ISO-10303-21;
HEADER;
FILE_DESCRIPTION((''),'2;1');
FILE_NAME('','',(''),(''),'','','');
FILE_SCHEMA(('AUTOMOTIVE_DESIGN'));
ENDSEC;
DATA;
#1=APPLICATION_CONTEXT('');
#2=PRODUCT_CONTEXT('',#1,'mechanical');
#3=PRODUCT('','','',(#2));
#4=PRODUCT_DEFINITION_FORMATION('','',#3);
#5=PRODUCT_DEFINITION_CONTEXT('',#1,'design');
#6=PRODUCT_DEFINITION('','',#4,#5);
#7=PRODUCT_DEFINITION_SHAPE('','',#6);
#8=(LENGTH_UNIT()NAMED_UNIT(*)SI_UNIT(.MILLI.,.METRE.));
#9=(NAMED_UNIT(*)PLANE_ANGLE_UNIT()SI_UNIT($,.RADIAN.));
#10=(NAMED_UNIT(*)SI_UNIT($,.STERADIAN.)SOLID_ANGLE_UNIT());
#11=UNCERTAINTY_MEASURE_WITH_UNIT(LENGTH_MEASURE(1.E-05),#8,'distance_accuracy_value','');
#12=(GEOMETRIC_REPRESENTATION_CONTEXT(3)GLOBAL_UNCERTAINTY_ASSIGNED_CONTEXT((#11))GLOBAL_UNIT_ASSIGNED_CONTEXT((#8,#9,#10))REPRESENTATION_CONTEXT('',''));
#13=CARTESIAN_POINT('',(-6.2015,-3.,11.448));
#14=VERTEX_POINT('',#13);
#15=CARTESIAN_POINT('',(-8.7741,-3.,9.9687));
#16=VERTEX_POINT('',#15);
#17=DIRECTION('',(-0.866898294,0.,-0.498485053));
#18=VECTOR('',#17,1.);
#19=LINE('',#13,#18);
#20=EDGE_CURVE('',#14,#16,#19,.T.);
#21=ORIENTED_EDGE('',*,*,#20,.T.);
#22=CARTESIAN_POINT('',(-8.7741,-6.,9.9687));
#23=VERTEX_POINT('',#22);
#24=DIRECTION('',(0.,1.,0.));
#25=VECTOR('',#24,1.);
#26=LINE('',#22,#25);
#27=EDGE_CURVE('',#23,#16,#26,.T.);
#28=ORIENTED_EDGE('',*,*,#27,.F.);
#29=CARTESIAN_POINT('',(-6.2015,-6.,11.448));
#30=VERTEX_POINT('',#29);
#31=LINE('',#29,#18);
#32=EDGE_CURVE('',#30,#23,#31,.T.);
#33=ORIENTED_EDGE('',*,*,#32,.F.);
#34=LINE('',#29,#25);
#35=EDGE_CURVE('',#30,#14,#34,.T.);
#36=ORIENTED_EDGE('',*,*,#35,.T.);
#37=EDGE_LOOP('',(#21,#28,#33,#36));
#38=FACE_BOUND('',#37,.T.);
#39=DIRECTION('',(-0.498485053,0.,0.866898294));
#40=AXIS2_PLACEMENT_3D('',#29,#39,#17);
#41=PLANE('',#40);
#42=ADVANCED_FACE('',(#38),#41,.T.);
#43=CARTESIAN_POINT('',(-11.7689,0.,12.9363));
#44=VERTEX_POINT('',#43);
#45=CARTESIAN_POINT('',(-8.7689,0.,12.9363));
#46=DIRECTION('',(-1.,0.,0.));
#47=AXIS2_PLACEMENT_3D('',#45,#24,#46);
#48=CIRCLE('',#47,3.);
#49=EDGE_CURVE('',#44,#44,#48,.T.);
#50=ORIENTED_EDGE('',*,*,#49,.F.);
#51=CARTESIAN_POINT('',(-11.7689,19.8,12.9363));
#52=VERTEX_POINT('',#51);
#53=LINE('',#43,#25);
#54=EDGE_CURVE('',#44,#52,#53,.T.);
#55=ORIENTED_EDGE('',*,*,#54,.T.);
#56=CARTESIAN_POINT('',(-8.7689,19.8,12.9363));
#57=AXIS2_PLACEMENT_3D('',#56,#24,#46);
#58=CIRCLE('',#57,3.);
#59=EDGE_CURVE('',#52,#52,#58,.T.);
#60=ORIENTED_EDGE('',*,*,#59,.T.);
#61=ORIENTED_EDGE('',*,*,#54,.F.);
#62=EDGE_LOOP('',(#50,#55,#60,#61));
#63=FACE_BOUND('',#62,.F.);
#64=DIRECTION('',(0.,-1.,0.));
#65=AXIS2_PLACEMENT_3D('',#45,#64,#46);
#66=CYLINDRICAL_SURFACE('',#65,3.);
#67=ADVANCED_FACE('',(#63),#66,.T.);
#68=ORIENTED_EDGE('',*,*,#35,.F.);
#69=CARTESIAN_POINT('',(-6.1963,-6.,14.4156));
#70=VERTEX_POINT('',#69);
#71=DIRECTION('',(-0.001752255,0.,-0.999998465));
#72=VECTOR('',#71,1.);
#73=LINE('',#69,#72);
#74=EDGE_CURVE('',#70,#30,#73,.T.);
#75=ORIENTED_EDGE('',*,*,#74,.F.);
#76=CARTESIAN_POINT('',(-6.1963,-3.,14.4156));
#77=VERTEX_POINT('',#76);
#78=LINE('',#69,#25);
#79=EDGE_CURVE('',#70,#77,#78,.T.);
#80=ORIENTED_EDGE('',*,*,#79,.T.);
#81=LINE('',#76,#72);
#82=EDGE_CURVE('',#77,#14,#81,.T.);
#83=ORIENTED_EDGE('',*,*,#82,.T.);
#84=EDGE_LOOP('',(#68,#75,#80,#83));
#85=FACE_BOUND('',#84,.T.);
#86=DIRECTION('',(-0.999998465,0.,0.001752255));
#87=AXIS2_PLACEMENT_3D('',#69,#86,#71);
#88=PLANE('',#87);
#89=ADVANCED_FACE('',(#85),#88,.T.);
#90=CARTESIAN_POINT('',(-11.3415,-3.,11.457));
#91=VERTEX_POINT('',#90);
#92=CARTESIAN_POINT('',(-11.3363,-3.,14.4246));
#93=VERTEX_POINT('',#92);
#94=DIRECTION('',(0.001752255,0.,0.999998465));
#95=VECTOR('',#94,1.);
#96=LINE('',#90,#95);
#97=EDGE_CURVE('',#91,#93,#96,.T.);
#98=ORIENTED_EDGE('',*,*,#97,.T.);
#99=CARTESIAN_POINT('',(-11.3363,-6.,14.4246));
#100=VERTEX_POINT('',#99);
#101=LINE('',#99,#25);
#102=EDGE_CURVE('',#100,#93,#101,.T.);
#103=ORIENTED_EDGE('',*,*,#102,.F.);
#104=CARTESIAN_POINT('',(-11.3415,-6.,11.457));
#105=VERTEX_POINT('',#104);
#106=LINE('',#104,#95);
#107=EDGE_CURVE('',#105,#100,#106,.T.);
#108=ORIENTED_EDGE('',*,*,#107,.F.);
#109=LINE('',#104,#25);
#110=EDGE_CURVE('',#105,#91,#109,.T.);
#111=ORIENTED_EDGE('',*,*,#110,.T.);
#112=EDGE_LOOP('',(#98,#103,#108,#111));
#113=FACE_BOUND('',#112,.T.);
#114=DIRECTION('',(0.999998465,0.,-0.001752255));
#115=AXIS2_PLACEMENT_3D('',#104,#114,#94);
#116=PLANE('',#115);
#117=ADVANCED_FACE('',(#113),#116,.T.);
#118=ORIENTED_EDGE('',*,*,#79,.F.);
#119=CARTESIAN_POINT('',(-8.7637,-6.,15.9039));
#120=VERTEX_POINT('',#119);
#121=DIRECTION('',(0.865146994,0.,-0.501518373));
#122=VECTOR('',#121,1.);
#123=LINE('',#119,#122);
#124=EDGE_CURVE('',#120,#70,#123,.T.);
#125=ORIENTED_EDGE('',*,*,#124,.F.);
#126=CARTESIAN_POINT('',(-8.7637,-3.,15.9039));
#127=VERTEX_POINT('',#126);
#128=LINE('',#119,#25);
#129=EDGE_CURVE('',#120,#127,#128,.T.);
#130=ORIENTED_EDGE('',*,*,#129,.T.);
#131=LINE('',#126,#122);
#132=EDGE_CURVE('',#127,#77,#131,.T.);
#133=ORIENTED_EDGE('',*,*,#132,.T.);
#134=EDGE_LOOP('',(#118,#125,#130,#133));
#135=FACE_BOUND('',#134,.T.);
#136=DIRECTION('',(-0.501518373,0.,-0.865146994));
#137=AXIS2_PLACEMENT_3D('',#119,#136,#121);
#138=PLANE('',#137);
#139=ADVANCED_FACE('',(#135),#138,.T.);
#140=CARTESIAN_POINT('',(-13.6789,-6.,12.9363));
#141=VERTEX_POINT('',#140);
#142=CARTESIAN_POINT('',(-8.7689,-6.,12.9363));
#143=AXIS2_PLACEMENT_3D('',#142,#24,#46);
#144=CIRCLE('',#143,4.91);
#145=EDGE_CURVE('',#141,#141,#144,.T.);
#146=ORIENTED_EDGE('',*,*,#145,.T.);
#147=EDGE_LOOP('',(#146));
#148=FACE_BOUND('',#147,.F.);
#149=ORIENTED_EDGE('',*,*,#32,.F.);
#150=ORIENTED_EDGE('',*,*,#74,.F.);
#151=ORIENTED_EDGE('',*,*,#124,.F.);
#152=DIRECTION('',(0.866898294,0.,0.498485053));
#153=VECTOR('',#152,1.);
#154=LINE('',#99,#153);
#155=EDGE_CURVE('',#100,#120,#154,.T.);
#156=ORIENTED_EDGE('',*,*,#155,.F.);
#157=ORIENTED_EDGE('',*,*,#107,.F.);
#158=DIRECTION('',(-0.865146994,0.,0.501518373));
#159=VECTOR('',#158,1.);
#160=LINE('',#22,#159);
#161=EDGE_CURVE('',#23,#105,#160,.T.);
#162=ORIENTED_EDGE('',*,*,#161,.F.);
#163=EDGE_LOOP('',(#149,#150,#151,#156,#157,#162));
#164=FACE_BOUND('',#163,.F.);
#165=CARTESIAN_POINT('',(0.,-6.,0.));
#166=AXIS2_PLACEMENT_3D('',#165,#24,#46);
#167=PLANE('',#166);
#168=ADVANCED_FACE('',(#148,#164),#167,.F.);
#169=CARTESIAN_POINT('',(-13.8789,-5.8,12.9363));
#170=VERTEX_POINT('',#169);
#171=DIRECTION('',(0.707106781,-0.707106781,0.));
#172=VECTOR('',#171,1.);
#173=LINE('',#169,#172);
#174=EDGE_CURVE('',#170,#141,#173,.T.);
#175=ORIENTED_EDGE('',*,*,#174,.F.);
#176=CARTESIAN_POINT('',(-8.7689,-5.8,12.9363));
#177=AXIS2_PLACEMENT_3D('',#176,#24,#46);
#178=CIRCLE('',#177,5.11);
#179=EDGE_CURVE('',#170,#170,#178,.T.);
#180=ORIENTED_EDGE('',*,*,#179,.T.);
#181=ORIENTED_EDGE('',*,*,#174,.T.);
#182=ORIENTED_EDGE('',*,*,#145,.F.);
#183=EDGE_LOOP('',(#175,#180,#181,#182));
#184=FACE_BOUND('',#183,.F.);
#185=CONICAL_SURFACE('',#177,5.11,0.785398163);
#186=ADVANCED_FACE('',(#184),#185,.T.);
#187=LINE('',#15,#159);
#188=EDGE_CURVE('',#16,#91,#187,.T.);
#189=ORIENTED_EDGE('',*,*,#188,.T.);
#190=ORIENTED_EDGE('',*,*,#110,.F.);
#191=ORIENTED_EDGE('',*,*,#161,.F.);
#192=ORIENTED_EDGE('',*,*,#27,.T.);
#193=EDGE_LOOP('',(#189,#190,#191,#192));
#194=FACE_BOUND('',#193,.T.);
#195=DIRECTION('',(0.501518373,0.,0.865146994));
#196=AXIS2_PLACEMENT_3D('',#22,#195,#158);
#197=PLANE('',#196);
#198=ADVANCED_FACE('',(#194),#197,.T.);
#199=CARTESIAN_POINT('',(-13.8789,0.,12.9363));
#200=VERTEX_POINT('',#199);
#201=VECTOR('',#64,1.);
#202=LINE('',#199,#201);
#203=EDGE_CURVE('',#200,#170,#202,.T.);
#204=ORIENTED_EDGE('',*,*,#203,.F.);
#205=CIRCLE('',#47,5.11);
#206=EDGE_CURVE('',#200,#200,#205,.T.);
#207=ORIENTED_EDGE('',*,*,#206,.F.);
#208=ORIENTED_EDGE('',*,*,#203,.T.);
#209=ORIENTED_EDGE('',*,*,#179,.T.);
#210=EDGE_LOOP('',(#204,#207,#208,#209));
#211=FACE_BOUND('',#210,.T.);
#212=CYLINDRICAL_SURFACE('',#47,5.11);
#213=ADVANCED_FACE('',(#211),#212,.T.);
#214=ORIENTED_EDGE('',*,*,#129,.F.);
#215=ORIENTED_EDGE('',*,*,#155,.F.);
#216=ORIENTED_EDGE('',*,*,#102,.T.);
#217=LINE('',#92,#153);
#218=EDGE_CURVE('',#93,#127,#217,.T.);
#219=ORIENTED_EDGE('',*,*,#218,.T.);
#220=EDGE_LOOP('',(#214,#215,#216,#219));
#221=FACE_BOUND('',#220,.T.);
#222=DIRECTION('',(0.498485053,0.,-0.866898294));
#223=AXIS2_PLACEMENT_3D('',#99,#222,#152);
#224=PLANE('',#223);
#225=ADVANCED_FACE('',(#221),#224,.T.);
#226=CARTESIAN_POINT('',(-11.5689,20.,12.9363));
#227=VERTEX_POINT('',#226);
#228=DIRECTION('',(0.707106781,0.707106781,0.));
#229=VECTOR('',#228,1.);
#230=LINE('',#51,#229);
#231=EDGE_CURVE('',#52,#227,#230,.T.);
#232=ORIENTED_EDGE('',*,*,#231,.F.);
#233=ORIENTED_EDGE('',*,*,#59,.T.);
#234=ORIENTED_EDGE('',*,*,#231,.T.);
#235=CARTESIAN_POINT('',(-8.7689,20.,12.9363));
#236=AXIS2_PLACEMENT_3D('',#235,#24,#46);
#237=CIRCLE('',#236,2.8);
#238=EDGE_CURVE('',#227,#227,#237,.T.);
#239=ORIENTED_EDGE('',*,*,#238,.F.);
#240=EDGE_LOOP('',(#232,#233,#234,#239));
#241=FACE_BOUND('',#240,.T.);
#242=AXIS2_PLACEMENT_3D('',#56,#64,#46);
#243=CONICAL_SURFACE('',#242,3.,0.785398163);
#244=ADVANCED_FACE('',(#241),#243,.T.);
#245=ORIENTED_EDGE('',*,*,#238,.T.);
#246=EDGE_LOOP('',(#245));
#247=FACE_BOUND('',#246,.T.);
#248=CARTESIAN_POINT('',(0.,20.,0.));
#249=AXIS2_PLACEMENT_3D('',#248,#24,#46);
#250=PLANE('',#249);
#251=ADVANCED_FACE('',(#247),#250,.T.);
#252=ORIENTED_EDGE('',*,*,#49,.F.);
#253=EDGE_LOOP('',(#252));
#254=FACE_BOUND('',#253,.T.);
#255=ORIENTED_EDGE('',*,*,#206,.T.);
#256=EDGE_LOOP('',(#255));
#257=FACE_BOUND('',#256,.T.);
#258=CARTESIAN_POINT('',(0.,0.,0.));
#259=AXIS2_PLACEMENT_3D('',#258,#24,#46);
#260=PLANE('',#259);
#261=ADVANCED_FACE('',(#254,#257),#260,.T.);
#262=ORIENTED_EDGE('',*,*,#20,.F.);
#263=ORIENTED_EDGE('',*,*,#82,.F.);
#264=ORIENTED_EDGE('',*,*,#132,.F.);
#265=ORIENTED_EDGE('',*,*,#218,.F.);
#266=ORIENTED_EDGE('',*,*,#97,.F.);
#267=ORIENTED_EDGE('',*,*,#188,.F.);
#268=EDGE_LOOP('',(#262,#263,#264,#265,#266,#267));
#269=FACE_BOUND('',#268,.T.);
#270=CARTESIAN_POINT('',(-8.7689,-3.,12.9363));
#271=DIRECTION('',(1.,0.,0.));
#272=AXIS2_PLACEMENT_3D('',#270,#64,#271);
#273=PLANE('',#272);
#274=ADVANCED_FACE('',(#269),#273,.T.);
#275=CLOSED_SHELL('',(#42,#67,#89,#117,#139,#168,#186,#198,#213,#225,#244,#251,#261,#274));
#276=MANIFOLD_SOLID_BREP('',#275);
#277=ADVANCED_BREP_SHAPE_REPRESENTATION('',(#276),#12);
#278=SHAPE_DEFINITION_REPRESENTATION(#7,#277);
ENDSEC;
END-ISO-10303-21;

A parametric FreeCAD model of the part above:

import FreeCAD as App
import Part
import Sketcher
Q = App.Units.Quantity


def edges_at(feature, points):
    """Names of the edges that pass closest to the given points."""
    edges = feature.Shape.Edges
    near = lambda p: min(range(len(edges)), key=lambda i: edges[i].distToShape(Part.Vertex(*p))[0])
    return sorted({f"Edge{near(p) + 1}" for p in points})

doc = App.newDocument("Part")
body = doc.addObject("PartDesign::Body", "Body")

sketch1 = body.newObject("Sketcher::SketchObject", "Sketch")
sketch1.AttachmentSupport = (doc.getObject("XZ_Plane"), [""])
sketch1.MapMode = "FlatFace"
sketch1.addGeometry(Part.Circle(App.Vector(-8.8, 12.9, 0), App.Vector(0, 0, 1), 3), False)
sketch1.addConstraint([
    Sketcher.Constraint("Diameter", 0, Q("6 mm")),
    Sketcher.Constraint("DistanceX", 0, 3, -1, 1, Q("8.769 mm")),
    Sketcher.Constraint("DistanceY", -1, 1, 0, 3, Q("12.9363 mm")),
])
pad1 = body.newObject("PartDesign::Pad", "Pad")
pad1.Profile = sketch1
pad1.Length = 20
pad1.Reversed = True

sketch2 = body.newObject("Sketcher::SketchObject", "Sketch001")
sketch2.AttachmentSupport = (doc.getObject("XZ_Plane"), [""])
sketch2.MapMode = "FlatFace"
sketch2.addGeometry(Part.Circle(App.Vector(-9, 13, 0), App.Vector(0, 0, 1), 5), False)
sketch2.addConstraint([
    Sketcher.Constraint("Diameter", 0, Q("10.22 mm")),
    Sketcher.Constraint("DistanceX", 0, 3, -1, 1, Q("8.769 mm")),
    Sketcher.Constraint("DistanceY", -1, 1, 0, 3, Q("12.9363 mm")),
])
pad2 = body.newObject("PartDesign::Pad", "Pad001")
pad2.Profile = sketch2
pad2.Length = 6

sketch3 = body.newObject("Sketcher::SketchObject", "Sketch002")
sketch3.AttachmentSupport = (doc.getObject("XZ_Plane"), [""])
sketch3.MapMode = "FlatFace"
sketch3.AttachmentOffset = App.Placement(App.Vector(0, 0, 6), App.Rotation())
sketch3.addGeometry([
    Part.LineSegment(App.Vector(-11.3, 14.4, 0), App.Vector(-11.3, 11.5, 0)),
    Part.LineSegment(App.Vector(-11.3, 11.5, 0), App.Vector(-8.8, 10, 0)),
    Part.LineSegment(App.Vector(-8.8, 10, 0), App.Vector(-6.2, 11.4, 0)),
    Part.LineSegment(App.Vector(-6.2, 11.4, 0), App.Vector(-6.2, 14.4, 0)),
    Part.LineSegment(App.Vector(-6.2, 14.4, 0), App.Vector(-8.8, 15.9, 0)),
    Part.LineSegment(App.Vector(-8.8, 15.9, 0), App.Vector(-11.3, 14.4, 0)),
], False)
sketch3.addConstraint([
    Sketcher.Constraint("Coincident", 0, 2, 1, 1),
    Sketcher.Constraint("Coincident", 1, 2, 2, 1),
    Sketcher.Constraint("Coincident", 2, 2, 3, 1),
    Sketcher.Constraint("Coincident", 3, 2, 4, 1),
    Sketcher.Constraint("Coincident", 4, 2, 5, 1),
    Sketcher.Constraint("Coincident", 5, 2, 0, 1),
    Sketcher.Constraint("Parallel", 0, 3),
    Sketcher.Constraint("Parallel", 1, 4),
    Sketcher.Constraint("Parallel", 2, 5),
    Sketcher.Constraint("Equal", 0, 1),
    Sketcher.Constraint("Equal", 1, 2),
    Sketcher.Constraint("Equal", 2, 3),
    Sketcher.Constraint("DistanceX", 0, 2, 2, 2, Q("5.14 mm")),
    Sketcher.Constraint("Angle", 0, Q("-90.1004 deg")),
    Sketcher.Constraint("Angle", 1, Q("-30.1005 deg")),
    Sketcher.Constraint("Angle", 2, Q("29.8998 deg")),
    Sketcher.Constraint("DistanceY", -1, 1, 0, 2, Q("11.457 mm")),
    Sketcher.Constraint("DistanceX", 1, 2, -1, 1, Q("8.774 mm")),
])
pocket1 = body.newObject("PartDesign::Pocket", "Pocket")
pocket1.Profile = sketch3
pocket1.Length = 3
doc.recompute()

chamfer = body.newObject("PartDesign::Chamfer", "Chamfer")
chamfer.Base = (pocket1, edges_at(pocket1, [(-3.659, -6, 12.936)]))
chamfer.Size = 0.2
doc.recompute()

chamfer2 = body.newObject("PartDesign::Chamfer", "Chamfer001")
chamfer2.Base = (chamfer, edges_at(chamfer, [(-5.769, 20, 12.936)]))
chamfer2.Size = 0.2

doc.recompute()
